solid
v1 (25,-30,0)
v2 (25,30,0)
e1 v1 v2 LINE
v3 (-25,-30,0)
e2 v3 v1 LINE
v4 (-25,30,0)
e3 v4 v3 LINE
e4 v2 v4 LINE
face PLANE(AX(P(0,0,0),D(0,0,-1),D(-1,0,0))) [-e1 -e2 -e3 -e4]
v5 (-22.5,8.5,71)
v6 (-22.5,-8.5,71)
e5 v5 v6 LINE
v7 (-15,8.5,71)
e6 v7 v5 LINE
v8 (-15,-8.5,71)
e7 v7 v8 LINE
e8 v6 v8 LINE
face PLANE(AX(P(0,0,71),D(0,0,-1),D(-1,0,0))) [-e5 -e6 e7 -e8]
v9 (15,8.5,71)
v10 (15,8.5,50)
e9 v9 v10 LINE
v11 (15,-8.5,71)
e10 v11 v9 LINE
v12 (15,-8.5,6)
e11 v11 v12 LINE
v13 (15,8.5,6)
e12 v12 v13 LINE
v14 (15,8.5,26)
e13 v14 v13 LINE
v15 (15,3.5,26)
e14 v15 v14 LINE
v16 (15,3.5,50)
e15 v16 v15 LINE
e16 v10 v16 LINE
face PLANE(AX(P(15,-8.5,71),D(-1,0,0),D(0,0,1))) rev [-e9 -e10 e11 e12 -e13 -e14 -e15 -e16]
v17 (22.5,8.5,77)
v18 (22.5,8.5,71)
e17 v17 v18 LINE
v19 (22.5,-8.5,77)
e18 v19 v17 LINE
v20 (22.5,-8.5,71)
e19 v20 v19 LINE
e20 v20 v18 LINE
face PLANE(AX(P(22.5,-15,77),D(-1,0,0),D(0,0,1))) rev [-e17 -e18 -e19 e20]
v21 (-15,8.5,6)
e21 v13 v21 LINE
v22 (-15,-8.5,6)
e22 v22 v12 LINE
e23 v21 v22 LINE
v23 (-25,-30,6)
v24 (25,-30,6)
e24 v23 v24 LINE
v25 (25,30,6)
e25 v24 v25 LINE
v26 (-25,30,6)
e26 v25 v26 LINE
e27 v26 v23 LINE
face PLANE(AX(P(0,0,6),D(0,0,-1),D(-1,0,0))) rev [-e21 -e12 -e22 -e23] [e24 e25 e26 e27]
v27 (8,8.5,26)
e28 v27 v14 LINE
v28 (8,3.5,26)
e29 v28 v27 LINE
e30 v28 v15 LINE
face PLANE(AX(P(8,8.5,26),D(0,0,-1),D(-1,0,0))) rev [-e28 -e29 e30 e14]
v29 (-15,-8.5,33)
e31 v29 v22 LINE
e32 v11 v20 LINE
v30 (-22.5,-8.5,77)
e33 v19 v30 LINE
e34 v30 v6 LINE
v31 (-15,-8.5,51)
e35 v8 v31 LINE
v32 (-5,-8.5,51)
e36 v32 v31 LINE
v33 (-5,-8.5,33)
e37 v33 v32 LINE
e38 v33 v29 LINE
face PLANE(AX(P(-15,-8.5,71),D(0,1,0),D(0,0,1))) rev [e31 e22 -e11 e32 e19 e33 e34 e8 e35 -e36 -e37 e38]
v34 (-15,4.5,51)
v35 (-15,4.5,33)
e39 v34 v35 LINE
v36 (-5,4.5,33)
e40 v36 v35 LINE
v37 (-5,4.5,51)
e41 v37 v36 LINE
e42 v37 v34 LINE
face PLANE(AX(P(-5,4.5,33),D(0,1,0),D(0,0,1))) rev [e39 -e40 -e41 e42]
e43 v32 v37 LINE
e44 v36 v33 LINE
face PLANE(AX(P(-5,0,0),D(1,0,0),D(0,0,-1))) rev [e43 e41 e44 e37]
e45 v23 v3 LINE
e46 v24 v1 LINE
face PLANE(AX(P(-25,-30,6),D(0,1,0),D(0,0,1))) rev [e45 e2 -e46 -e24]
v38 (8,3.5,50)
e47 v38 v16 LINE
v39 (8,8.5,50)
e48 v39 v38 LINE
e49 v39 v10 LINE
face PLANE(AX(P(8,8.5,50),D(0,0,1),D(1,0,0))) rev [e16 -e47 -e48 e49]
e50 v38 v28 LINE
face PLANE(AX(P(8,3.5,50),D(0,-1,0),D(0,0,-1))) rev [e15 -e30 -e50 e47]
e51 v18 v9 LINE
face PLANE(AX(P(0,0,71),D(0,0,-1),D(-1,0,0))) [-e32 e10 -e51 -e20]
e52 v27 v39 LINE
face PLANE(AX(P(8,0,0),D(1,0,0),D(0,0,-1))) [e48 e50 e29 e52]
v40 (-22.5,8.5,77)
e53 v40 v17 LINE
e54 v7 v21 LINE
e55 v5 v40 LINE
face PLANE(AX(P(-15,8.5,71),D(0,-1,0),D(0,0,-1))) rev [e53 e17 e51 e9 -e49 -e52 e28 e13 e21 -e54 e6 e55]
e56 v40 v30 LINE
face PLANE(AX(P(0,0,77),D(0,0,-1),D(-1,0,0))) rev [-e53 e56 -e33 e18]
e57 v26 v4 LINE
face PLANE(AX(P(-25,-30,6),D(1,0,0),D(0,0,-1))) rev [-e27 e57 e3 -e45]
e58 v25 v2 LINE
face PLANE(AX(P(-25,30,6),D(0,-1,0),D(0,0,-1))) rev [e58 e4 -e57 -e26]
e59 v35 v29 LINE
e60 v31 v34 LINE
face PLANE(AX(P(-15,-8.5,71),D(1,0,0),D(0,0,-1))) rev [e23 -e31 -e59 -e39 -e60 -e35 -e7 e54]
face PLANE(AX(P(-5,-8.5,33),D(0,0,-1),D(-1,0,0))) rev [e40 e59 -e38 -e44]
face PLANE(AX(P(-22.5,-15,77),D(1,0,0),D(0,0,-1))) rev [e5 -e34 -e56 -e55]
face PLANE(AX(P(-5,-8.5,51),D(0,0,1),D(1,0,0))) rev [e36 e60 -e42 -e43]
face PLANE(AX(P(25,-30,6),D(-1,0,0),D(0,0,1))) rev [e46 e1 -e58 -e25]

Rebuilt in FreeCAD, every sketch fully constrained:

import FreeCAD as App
import Part
import Sketcher

V = App.Vector
Q = App.Units.Quantity

doc = App.newDocument("Part")
params = doc.addObject("Spreadsheet::Sheet", "Params")
for row, (alias, value) in enumerate([
    ("sketch1_width", "50 mm"),
    ("sketch1_height", "60 mm"),
    ("pad1_length", "6 mm"),
    ("sketch2_width", "30 mm"),
    ("sketch2_height", "17 mm"),
    ("pad2_length", "65 mm"),
    ("sketch3_width", "45 mm"),
    ("sketch3_height", "30 mm"),
    ("pad3_length", "6 mm"),
    ("sketch4_width", "13 mm"),
    ("sketch4_height", "18 mm"),
    ("pocket1_length", "10 mm"),
    ("sketch5_width", "5 mm"),
    ("sketch5_height", "24 mm"),
    ("pocket2_length", "7 mm"),
    ("sketch6_width", "45 mm"),
    ("sketch6_height", "6 mm"),
    ("pocket3_length", "6.5 mm"),
    ("sketch7_width", "45 mm"),
    ("sketch7_height", "6 mm"),
    ("pocket4_length", "6.5 mm"),
], start=1):
    params.set(f"A{row}", alias)
    params.set(f"B{row}", "=" + value)
    params.setAlias(f"B{row}", alias)

body = doc.addObject("PartDesign::Body", "Body")

# Sketch on XY plane
sketch1 = doc.addObject("Sketcher::SketchObject", "Sketch")
body.addObject(sketch1)
sketch1.AttachmentSupport = (doc.XY_Plane, [""])
sketch1.MapMode = "FlatFace"
sketch1.addGeometry([
    Part.LineSegment(V(-25, 30, 0), V(-25, -30, 0)),
    Part.LineSegment(V(-25, -30, 0), V(25, -30, 0)),
    Part.LineSegment(V(25, -30, 0), V(25, 30, 0)),
    Part.LineSegment(V(25, 30, 0), V(-25, 30, 0)),
], False)
sketch1.addConstraint([
    Sketcher.Constraint("Coincident", 0, 2, 1, 1),
    Sketcher.Constraint("Coincident", 1, 2, 2, 1),
    Sketcher.Constraint("Coincident", 2, 2, 3, 1),
    Sketcher.Constraint("Coincident", 3, 2, 0, 1),
    Sketcher.Constraint("Vertical", 0),
    Sketcher.Constraint("Horizontal", 1),
    Sketcher.Constraint("Vertical", 2),
    Sketcher.Constraint("Horizontal", 3),
    Sketcher.Constraint("Symmetric", 0, 2, 2, 2, -1, 1),
    Sketcher.Constraint("DistanceX", 1, 1, 1, 2, Q("50 mm")),
    Sketcher.Constraint("DistanceY", 0, 2, 0, 1, Q("60 mm")),
])
sketch1.setExpression("Constraints[9]", "Params.sketch1_width")
sketch1.setExpression("Constraints[10]", "Params.sketch1_height")
pad1 = doc.addObject("PartDesign::Pad", "Pad")
body.addObject(pad1)
pad1.Profile = sketch1
pad1.setExpression("Length", "Params.pad1_length")

# Sketch on XY plane
sketch2 = doc.addObject("Sketcher::SketchObject", "Sketch001")
body.addObject(sketch2)
sketch2.AttachmentSupport = (doc.XY_Plane, [""])
sketch2.MapMode = "FlatFace"
sketch2.AttachmentOffset = App.Placement(V(0, 0, 6), App.Rotation())
sketch2.addGeometry([
    Part.LineSegment(V(-15, 8, 0), V(-15, -8, 0)),
    Part.LineSegment(V(-15, -8, 0), V(15, -8, 0)),
    Part.LineSegment(V(15, -8, 0), V(15, 8, 0)),
    Part.LineSegment(V(15, 8, 0), V(-15, 8, 0)),
], False)
sketch2.addConstraint([
    Sketcher.Constraint("Coincident", 0, 2, 1, 1),
    Sketcher.Constraint("Coincident", 1, 2, 2, 1),
    Sketcher.Constraint("Coincident", 2, 2, 3, 1),
    Sketcher.Constraint("Coincident", 3, 2, 0, 1),
    Sketcher.Constraint("Vertical", 0),
    Sketcher.Constraint("Horizontal", 1),
    Sketcher.Constraint("Vertical", 2),
    Sketcher.Constraint("Horizontal", 3),
    Sketcher.Constraint("Symmetric", 0, 2, 2, 2, -1, 1),
    Sketcher.Constraint("DistanceX", 1, 1, 1, 2, Q("30 mm")),
    Sketcher.Constraint("DistanceY", 0, 2, 0, 1, Q("17 mm")),
])
sketch2.setExpression("Constraints[9]", "Params.sketch2_width")
sketch2.setExpression("Constraints[10]", "Params.sketch2_height")
pad2 = doc.addObject("PartDesign::Pad", "Pad001")
body.addObject(pad2)
pad2.Profile = sketch2
pad2.setExpression("Length", "Params.pad2_length")

# Sketch on XY plane
sketch3 = doc.addObject("Sketcher::SketchObject", "Sketch002")
body.addObject(sketch3)
sketch3.AttachmentSupport = (doc.XY_Plane, [""])
sketch3.MapMode = "FlatFace"
sketch3.AttachmentOffset = App.Placement(V(0, 0, 71), App.Rotation())
sketch3.addGeometry([
    Part.LineSegment(V(-22, 15, 0), V(-22, -15, 0)),
    Part.LineSegment(V(-22, -15, 0), V(22, -15, 0)),
    Part.LineSegment(V(22, -15, 0), V(22, 15, 0)),
    Part.LineSegment(V(22, 15, 0), V(-22, 15, 0)),
], False)
sketch3.addConstraint([
    Sketcher.Constraint("Coincident", 0, 2, 1, 1),
    Sketcher.Constraint("Coincident", 1, 2, 2, 1),
    Sketcher.Constraint("Coincident", 2, 2, 3, 1),
    Sketcher.Constraint("Coincident", 3, 2, 0, 1),
    Sketcher.Constraint("Vertical", 0),
    Sketcher.Constraint("Horizontal", 1),
    Sketcher.Constraint("Vertical", 2),
    Sketcher.Constraint("Horizontal", 3),
    Sketcher.Constraint("Symmetric", 0, 2, 2, 2, -1, 1),
    Sketcher.Constraint("DistanceX", 1, 1, 1, 2, Q("45 mm")),
    Sketcher.Constraint("DistanceY", 0, 2, 0, 1, Q("30 mm")),
])
sketch3.setExpression("Constraints[9]", "Params.sketch3_width")
sketch3.setExpression("Constraints[10]", "Params.sketch3_height")
pad3 = doc.addObject("PartDesign::Pad", "Pad002")
body.addObject(pad3)
pad3.Profile = sketch3
pad3.setExpression("Length", "Params.pad3_length")

# Sketch on YZ plane
sketch4 = doc.addObject("Sketcher::SketchObject", "Sketch003")
body.addObject(sketch4)
sketch4.AttachmentSupport = (doc.YZ_Plane, [""])
sketch4.MapMode = "FlatFace"
sketch4.AttachmentOffset = App.Placement(V(0, 0, -15), App.Rotation())
sketch4.addGeometry([
    Part.LineSegment(V(4, 33, 0), V(-8, 33, 0)),
    Part.LineSegment(V(-8, 33, 0), V(-8, 51, 0)),
    Part.LineSegment(V(-8, 51, 0), V(4, 51, 0)),
    Part.LineSegment(V(4, 51, 0), V(4, 33, 0)),
], False)
sketch4.addConstraint([
    Sketcher.Constraint("Coincident", 0, 2, 1, 1),
    Sketcher.Constraint("Coincident", 1, 2, 2, 1),
    Sketcher.Constraint("Coincident", 2, 2, 3, 1),
    Sketcher.Constraint("Coincident", 3, 2, 0, 1),
    Sketcher.Constraint("Horizontal", 0),
    Sketcher.Constraint("Vertical", 1),
    Sketcher.Constraint("Horizontal", 2),
    Sketcher.Constraint("Vertical", 3),
    Sketcher.Constraint("DistanceX", 0, 2, 0, 1, Q("13 mm")),
    Sketcher.Constraint("DistanceY", 1, 1, 1, 2, Q("18 mm")),
    Sketcher.Constraint("DistanceY", -1, 1, 0, 2, Q("33 mm")),
    Sketcher.Constraint("DistanceX", 0, 2, -1, 1, Q("8.5 mm")),
])
sketch4.setExpression("Constraints[8]", "Params.sketch4_width")
sketch4.setExpression("Constraints[9]", "Params.sketch4_height")
pocket1 = doc.addObject("PartDesign::Pocket", "Pocket")
body.addObject(pocket1)
pocket1.Profile = sketch4
pocket1.setExpression("Length", "Params.pocket1_length")
pocket1.Reversed = True

# Sketch on YZ plane
sketch5 = doc.addObject("Sketcher::SketchObject", "Sketch004")
body.addObject(sketch5)
sketch5.AttachmentSupport = (doc.YZ_Plane, [""])
sketch5.MapMode = "FlatFace"
sketch5.AttachmentOffset = App.Placement(V(0, 0, 15), App.Rotation())
sketch5.addGeometry([
    Part.LineSegment(V(8, 50, 0), V(4, 50, 0)),
    Part.LineSegment(V(4, 50, 0), V(4, 26, 0)),
    Part.LineSegment(V(4, 26, 0), V(8, 26, 0)),
    Part.LineSegment(V(8, 26, 0), V(8, 50, 0)),
], False)
sketch5.addConstraint([
    Sketcher.Constraint("Coincident", 0, 2, 1, 1),
    Sketcher.Constraint("Coincident", 1, 2, 2, 1),
    Sketcher.Constraint("Coincident", 2, 2, 3, 1),
    Sketcher.Constraint("Coincident", 3, 2, 0, 1),
    Sketcher.Constraint("Horizontal", 0),
    Sketcher.Constraint("Vertical", 1),
    Sketcher.Constraint("Horizontal", 2),
    Sketcher.Constraint("Vertical", 3),
    Sketcher.Constraint("DistanceX", 0, 2, 0, 1, Q("5 mm")),
    Sketcher.Constraint("DistanceY", 1, 2, 1, 1, Q("24 mm")),
    Sketcher.Constraint("DistanceY", -1, 1, 0, 2, Q("50 mm")),
    Sketcher.Constraint("DistanceX", -1, 1, 0, 2, Q("3.5 mm")),
])
sketch5.setExpression("Constraints[8]", "Params.sketch5_width")
sketch5.setExpression("Constraints[9]", "Params.sketch5_height")
pocket2 = doc.addObject("PartDesign::Pocket", "Pocket001")
body.addObject(pocket2)
pocket2.Profile = sketch5
pocket2.setExpression("Length", "Params.pocket2_length")

# Sketch on XZ plane
sketch6 = doc.addObject("Sketcher::SketchObject", "Sketch005")
body.addObject(sketch6)
sketch6.AttachmentSupport = (doc.XZ_Plane, [""])
sketch6.MapMode = "FlatFace"
sketch6.AttachmentOffset = App.Placement(V(0, 0, -15), App.Rotation())
sketch6.addGeometry([
    Part.LineSegment(V(-22, 71, 0), V(-22, 77, 0)),
    Part.LineSegment(V(-22, 77, 0), V(22, 77, 0)),
    Part.LineSegment(V(22, 77, 0), V(22, 71, 0)),
    Part.LineSegment(V(22, 71, 0), V(-22, 71, 0)),
], False)
sketch6.addConstraint([
    Sketcher.Constraint("Coincident", 0, 2, 1, 1),
    Sketcher.Constraint("Coincident", 1, 2, 2, 1),
    Sketcher.Constraint("Coincident", 2, 2, 3, 1),
    Sketcher.Constraint("Coincident", 3, 2, 0, 1),
    Sketcher.Constraint("Vertical", 0),
    Sketcher.Constraint("Horizontal", 1),
    Sketcher.Constraint("Vertical", 2),
    Sketcher.Constraint("Horizontal", 3),
    Sketcher.Constraint("DistanceX", 1, 1, 1, 2, Q("45 mm")),
    Sketcher.Constraint("DistanceY", 0, 1, 0, 2, Q("6 mm")),
    Sketcher.Constraint("DistanceY", -1, 1, 0, 2, Q("77 mm")),
    Sketcher.Constraint("DistanceX", 0, 2, -1, 1, Q("22.5 mm")),
])
sketch6.setExpression("Constraints[8]", "Params.sketch6_width")
sketch6.setExpression("Constraints[9]", "Params.sketch6_height")
pocket3 = doc.addObject("PartDesign::Pocket", "Pocket002")
body.addObject(pocket3)
pocket3.Profile = sketch6
pocket3.setExpression("Length", "Params.pocket3_length")
pocket3.Reversed = True

# Sketch on XZ plane
sketch7 = doc.addObject("Sketcher::SketchObject", "Sketch006")
body.addObject(sketch7)
sketch7.AttachmentSupport = (doc.XZ_Plane, [""])
sketch7.MapMode = "FlatFace"
sketch7.AttachmentOffset = App.Placement(V(0, 0, 15), App.Rotation())
sketch7.addGeometry([
    Part.LineSegment(V(-22, 77, 0), V(-22, 71, 0)),
    Part.LineSegment(V(-22, 71, 0), V(22, 71, 0)),
    Part.LineSegment(V(22, 71, 0), V(22, 77, 0)),
    Part.LineSegment(V(22, 77, 0), V(-22, 77, 0)),
], False)
sketch7.addConstraint([
    Sketcher.Constraint("Coincident", 0, 2, 1, 1),
    Sketcher.Constraint("Coincident", 1, 2, 2, 1),
    Sketcher.Constraint("Coincident", 2, 2, 3, 1),
    Sketcher.Constraint("Coincident", 3, 2, 0, 1),
    Sketcher.Constraint("Vertical", 0),
    Sketcher.Constraint("Horizontal", 1),
    Sketcher.Constraint("Vertical", 2),
    Sketcher.Constraint("Horizontal", 3),
    Sketcher.Constraint("DistanceX", 1, 1, 1, 2, Q("45 mm")),
    Sketcher.Constraint("DistanceY", 0, 2, 0, 1, Q("6 mm")),
    Sketcher.Constraint("DistanceY", -1, 1, 0, 2, Q("71 mm")),
    Sketcher.Constraint("DistanceX", 0, 2, -1, 1, Q("22.5 mm")),
])
sketch7.setExpression("Constraints[8]", "Params.sketch7_width")
sketch7.setExpression("Constraints[9]", "Params.sketch7_height")
pocket4 = doc.addObject("PartDesign::Pocket", "Pocket003")
body.addObject(pocket4)
pocket4.Profile = sketch7
pocket4.setExpression("Length", "Params.pocket4_length")

doc.recompute()
